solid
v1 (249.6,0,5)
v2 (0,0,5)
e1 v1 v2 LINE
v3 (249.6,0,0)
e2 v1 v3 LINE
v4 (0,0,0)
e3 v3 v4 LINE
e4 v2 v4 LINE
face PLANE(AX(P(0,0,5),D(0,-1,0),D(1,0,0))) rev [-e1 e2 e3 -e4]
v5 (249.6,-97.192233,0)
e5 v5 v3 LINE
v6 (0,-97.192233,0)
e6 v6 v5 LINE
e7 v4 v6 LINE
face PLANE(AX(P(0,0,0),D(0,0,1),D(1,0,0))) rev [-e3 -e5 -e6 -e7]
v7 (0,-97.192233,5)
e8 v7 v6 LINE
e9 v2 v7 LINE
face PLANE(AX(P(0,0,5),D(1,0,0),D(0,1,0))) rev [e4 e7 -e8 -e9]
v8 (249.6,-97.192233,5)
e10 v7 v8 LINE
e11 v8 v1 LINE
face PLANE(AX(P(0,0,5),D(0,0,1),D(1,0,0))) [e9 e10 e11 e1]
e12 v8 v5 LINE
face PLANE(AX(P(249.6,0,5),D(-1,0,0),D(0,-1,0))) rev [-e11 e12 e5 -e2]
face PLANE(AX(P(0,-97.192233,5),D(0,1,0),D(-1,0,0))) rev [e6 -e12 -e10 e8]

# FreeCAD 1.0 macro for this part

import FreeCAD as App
import Part
import Sketcher
from FreeCAD import Vector
Q = App.Units.Quantity

doc = App.newDocument("Part")
body = doc.addObject("PartDesign::Body", "Body")

# Sketch on XY plane
sketch1 = body.newObject("Sketcher::SketchObject", "Sketch")
sketch1.AttachmentSupport = (doc.getObject("XY_Plane"), [""])
sketch1.MapMode = "FlatFace"
sketch1.addGeometry(Part.LineSegment(Vector(0, 0, 0), Vector(0, -97.192233, 0)), False)
sketch1.addGeometry(Part.LineSegment(Vector(0, -97.192233, 0), Vector(249.6, -97.192233, 0)), False)
sketch1.addGeometry(Part.LineSegment(Vector(249.6, -97.192233, 0), Vector(249.6, 0, 0)), False)
sketch1.addGeometry(Part.LineSegment(Vector(249.6, 0, 0), Vector(0, 0, 0)), False)
sketch1.addConstraint(Sketcher.Constraint("Coincident", 0, 2, 1, 1))
sketch1.addConstraint(Sketcher.Constraint("Coincident", 1, 2, 2, 1))
sketch1.addConstraint(Sketcher.Constraint("Coincident", 2, 2, 3, 1))
sketch1.addConstraint(Sketcher.Constraint("Coincident", 3, 2, 0, 1))
sketch1.addConstraint(Sketcher.Constraint("Vertical", 0))
sketch1.addConstraint(Sketcher.Constraint("Horizontal", 1))
sketch1.addConstraint(Sketcher.Constraint("Vertical", 2))
sketch1.addConstraint(Sketcher.Constraint("Horizontal", 3))
sketch1.addConstraint(Sketcher.Constraint("Coincident", 3, 2, -1, 1))
sketch1.addConstraint(Sketcher.Constraint("DistanceX", 1, 1, 1, 2, Q("249.6 mm")))
sketch1.addConstraint(Sketcher.Constraint("DistanceY", 0, 2, 0, 1, Q("97.192233 mm")))
pad1 = body.newObject("PartDesign::Pad", "Pad")
pad1.Profile = sketch1
pad1.Length = 5

doc.recompute()
